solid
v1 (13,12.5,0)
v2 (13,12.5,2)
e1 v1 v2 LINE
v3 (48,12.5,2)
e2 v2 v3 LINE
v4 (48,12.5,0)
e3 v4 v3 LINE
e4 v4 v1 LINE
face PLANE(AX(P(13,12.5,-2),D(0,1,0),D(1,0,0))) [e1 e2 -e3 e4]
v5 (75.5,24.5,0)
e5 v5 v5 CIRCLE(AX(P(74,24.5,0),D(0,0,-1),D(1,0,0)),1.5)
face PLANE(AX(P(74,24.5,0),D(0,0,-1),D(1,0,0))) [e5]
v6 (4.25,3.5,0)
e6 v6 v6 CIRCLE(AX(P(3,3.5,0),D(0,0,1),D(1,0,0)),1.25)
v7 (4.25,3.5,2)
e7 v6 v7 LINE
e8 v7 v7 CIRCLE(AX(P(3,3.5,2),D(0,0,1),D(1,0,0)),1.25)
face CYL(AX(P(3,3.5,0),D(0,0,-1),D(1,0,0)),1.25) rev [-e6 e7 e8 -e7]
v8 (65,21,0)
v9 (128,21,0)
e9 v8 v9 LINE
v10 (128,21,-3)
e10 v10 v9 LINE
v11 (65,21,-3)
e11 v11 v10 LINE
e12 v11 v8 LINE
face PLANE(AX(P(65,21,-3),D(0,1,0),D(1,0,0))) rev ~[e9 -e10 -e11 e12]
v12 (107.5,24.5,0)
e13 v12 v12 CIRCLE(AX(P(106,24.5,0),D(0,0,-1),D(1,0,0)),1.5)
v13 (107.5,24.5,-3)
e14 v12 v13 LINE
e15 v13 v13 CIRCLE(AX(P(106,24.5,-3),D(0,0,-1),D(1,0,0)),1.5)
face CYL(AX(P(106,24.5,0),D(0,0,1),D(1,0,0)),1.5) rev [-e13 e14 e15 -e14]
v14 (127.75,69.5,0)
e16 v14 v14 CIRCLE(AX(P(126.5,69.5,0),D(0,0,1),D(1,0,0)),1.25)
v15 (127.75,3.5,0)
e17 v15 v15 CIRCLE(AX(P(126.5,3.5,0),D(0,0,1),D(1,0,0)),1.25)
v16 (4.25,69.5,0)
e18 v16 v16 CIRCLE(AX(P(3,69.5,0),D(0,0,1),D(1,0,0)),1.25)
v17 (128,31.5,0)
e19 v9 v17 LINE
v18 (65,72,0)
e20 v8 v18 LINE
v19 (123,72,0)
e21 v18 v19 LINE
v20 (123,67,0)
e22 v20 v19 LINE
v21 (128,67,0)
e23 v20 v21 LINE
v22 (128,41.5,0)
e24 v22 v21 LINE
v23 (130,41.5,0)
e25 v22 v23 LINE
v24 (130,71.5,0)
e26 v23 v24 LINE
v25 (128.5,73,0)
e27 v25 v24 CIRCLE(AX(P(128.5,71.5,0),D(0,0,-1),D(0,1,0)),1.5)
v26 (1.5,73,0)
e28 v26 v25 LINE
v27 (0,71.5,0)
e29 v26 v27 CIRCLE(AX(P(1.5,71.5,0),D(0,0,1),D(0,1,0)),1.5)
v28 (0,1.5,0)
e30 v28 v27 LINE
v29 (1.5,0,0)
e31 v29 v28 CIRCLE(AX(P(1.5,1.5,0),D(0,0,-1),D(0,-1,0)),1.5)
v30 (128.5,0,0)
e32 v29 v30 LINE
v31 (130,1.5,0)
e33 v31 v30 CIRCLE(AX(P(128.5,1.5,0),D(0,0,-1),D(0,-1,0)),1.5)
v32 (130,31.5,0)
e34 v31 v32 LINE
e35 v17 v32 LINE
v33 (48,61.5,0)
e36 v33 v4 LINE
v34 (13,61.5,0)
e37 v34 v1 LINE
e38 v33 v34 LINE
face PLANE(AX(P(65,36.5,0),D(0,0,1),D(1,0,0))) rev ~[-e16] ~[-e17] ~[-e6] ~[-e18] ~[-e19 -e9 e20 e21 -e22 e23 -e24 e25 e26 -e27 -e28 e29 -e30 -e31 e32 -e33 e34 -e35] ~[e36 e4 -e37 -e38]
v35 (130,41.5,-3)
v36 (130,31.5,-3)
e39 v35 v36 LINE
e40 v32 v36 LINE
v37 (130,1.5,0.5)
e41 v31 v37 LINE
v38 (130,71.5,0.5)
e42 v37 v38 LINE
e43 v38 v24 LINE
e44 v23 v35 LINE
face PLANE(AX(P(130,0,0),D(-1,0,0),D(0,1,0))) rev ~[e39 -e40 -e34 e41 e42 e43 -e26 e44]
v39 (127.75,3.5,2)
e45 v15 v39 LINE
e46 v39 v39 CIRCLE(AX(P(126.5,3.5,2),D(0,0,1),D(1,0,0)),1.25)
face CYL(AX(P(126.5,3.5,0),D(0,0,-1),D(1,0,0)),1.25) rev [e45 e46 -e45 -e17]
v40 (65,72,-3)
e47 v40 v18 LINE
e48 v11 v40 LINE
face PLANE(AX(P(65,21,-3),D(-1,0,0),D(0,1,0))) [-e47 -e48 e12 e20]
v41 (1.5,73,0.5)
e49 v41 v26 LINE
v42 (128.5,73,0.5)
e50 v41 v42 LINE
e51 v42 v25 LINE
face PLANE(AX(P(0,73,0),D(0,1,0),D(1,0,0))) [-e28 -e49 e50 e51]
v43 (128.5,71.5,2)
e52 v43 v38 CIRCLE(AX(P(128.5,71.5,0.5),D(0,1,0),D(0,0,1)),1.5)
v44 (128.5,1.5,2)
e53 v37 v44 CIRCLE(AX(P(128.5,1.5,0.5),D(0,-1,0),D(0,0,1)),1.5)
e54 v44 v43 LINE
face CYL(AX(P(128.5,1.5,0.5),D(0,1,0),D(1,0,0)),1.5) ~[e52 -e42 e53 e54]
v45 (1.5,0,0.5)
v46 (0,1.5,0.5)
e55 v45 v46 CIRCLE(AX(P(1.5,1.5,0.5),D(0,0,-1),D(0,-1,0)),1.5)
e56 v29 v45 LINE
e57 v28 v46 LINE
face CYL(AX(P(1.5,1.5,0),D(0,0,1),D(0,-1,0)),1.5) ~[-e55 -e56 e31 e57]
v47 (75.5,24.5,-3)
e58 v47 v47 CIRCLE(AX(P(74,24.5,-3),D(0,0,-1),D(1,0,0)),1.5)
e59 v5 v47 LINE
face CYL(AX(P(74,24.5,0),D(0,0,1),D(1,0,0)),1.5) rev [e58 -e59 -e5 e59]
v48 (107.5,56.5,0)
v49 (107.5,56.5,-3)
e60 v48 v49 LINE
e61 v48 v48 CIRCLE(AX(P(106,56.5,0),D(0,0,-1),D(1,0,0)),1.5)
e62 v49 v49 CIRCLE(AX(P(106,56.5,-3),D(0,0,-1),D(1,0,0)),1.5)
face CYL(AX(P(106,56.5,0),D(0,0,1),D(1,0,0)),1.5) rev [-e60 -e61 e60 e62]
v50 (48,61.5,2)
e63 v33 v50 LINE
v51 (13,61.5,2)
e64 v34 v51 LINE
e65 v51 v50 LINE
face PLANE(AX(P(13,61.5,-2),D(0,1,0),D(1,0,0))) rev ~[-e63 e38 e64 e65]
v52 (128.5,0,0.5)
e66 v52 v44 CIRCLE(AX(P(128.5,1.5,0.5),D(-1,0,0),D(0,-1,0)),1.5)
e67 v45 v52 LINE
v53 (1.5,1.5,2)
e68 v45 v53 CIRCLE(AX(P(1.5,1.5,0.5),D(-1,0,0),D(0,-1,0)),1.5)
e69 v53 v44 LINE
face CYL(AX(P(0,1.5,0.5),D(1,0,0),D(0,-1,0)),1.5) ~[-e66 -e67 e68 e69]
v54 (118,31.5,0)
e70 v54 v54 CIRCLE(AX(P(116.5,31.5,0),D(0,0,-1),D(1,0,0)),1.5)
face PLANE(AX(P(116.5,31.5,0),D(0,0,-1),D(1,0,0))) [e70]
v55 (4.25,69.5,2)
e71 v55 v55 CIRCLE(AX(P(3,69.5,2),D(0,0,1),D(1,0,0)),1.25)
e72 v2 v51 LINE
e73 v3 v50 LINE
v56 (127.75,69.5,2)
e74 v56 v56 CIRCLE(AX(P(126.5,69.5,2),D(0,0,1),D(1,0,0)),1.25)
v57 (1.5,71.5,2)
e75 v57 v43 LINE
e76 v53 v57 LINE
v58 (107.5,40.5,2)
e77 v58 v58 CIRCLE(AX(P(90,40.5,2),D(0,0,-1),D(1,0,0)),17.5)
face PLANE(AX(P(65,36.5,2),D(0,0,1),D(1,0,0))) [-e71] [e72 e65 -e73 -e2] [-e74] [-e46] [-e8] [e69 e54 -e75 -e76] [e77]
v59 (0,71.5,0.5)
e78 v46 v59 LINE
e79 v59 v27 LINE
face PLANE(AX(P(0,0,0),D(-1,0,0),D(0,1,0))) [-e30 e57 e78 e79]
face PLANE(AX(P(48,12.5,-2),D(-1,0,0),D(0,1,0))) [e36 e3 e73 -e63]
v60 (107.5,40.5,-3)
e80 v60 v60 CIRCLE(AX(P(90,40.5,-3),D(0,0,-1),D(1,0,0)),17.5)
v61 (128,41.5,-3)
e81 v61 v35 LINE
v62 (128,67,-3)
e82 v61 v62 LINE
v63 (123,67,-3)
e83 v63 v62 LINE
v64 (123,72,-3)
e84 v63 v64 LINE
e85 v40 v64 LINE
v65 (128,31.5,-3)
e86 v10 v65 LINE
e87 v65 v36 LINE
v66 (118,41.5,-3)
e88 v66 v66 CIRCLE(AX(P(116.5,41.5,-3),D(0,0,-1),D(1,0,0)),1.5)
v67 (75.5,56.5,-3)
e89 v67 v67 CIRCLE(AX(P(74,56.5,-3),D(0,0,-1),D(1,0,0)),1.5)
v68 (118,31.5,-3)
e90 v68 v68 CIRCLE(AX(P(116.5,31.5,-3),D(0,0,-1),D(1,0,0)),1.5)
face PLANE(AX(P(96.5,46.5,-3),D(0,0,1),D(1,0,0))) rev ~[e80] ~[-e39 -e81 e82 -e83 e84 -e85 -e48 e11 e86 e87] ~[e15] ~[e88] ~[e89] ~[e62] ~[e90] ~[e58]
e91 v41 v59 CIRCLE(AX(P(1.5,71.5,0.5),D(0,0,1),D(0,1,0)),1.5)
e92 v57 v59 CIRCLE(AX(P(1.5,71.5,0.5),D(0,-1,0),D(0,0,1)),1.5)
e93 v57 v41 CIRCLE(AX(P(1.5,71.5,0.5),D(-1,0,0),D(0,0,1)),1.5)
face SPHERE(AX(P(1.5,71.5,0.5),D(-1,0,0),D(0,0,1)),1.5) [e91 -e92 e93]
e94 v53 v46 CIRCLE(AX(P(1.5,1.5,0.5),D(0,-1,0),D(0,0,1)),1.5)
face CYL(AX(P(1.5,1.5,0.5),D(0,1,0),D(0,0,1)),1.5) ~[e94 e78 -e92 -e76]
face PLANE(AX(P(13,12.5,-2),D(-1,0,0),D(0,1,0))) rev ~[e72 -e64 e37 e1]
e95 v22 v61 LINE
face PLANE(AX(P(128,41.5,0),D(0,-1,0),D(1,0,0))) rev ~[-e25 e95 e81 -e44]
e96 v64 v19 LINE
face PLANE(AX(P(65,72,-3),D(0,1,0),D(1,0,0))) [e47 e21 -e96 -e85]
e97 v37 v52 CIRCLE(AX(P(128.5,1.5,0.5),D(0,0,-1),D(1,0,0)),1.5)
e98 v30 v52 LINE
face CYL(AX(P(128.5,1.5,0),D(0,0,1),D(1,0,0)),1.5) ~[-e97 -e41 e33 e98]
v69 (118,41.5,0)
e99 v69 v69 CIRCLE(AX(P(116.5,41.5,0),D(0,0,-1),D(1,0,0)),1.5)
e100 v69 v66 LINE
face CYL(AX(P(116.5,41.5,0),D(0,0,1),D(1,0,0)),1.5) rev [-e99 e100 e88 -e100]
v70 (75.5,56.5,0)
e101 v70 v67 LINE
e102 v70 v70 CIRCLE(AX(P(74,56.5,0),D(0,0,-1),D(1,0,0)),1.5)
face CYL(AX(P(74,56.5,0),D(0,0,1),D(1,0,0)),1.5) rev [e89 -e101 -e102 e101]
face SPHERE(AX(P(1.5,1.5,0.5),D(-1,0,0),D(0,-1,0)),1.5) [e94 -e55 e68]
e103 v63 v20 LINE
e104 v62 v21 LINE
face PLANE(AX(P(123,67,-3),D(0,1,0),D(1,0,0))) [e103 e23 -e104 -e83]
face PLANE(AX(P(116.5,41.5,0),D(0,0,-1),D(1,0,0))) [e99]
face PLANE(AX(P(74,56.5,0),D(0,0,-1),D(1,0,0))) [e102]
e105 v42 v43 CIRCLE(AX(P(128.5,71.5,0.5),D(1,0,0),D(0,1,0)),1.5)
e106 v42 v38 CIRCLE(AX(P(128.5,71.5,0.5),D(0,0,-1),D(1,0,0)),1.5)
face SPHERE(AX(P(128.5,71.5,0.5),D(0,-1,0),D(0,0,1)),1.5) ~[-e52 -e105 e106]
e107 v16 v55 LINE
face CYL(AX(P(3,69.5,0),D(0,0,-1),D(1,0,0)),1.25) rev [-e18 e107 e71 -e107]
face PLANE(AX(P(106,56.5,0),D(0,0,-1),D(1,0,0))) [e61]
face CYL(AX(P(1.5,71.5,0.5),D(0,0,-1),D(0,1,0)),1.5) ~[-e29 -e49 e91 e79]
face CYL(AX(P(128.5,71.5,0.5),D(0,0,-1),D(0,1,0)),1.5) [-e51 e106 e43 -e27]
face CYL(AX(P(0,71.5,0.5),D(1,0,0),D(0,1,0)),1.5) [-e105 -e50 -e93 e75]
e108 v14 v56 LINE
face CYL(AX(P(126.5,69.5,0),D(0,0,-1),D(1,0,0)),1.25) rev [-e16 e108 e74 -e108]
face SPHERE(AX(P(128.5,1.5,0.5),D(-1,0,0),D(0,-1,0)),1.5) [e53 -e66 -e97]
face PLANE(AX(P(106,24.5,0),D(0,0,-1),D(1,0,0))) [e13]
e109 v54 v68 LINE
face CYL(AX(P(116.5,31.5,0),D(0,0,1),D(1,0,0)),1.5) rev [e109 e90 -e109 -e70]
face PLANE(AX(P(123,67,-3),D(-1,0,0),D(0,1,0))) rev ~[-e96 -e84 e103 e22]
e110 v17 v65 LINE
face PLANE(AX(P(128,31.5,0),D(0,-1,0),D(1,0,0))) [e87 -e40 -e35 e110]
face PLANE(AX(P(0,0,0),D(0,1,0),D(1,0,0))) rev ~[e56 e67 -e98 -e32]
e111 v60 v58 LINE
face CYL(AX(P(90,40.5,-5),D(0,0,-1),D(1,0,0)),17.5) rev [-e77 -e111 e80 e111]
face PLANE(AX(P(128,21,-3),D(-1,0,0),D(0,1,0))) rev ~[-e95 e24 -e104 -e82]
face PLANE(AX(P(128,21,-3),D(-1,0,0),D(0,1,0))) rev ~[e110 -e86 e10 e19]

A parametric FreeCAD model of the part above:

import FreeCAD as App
import Part
import Sketcher
from FreeCAD import Vector


def edges_at(feature, points):
    """Names of the edges that pass closest to the given points."""
    edges = feature.Shape.Edges
    near = lambda p: min(range(len(edges)), key=lambda i: edges[i].distToShape(Part.Vertex(*p))[0])
    return sorted({f"Edge{near(p) + 1}" for p in points})


def add_polygon(sketch, points):
    """Adds a closed chain of lines whose ends are joined by coincident constraints."""
    first, n = sketch.GeometryCount, len(points)
    for a, b in zip(points, points[1:] + points[:1]):
        sketch.addGeometry(Part.LineSegment(App.Vector(*a, 0), App.Vector(*b, 0)), False)
    for i in range(n):
        sketch.addConstraint(Sketcher.Constraint("Coincident", first + i, 2, first + (i + 1) % n, 1))

doc = App.newDocument("Part")
body = doc.addObject("PartDesign::Body", "Body")

# Sketch on XY plane
sketch1 = body.newObject("Sketcher::SketchObject", "Sketch")
sketch1.AttachmentSupport = (doc.getObject("XY_Plane"), [""])
sketch1.MapMode = "FlatFace"
add_polygon(sketch1, [(0, 73), (0, 0), (130, 0), (130, 73)])  # lines 0-3
sketch1.addConstraint([
    Sketcher.Constraint("Vertical", 0),
    Sketcher.Constraint("Horizontal", 1),
    Sketcher.Constraint("Vertical", 2),
    Sketcher.Constraint("Horizontal", 3),
    Sketcher.Constraint("Coincident", 0, 2, -1, 1),
    Sketcher.Constraint("DistanceX", 1, 1, 1, 2, 130.0),
    Sketcher.Constraint("DistanceY", 0, 2, 0, 1, 73.0),
])
pad1 = body.newObject("PartDesign::Pad", "Pad")
pad1.Profile = sketch1
pad1.Length = 2

# Sketch on XY plane
sketch2 = body.newObject("Sketcher::SketchObject", "Sketch001")
sketch2.AttachmentSupport = (doc.getObject("XY_Plane"), [""])
sketch2.MapMode = "FlatFace"
sketch2.AttachmentOffset = App.Placement(Vector(0, 0, -2), App.Rotation())
add_polygon(sketch2, [(13, 61.5), (13, 12.5), (48, 12.5), (48, 61.5)])  # lines 0-3
sketch2.addConstraint([
    Sketcher.Constraint("Vertical", 0),
    Sketcher.Constraint("Horizontal", 1),
    Sketcher.Constraint("Vertical", 2),
    Sketcher.Constraint("Horizontal", 3),
    Sketcher.Constraint("DistanceX", 1, 1, 1, 2, 35.0),
    Sketcher.Constraint("DistanceY", 0, 2, 0, 1, 49.0),
    Sketcher.Constraint("DistanceX", -1, 1, 0, 2, 13.0),
    Sketcher.Constraint("DistanceY", -1, 1, 0, 2, 12.5),
])
pocket1 = body.newObject("PartDesign::Pocket", "Pocket")
pocket1.Profile = sketch2
pocket1.Length = 4
pocket1.Reversed = True

# Sketch on XY plane
sketch3 = body.newObject("Sketcher::SketchObject", "Sketch002")
sketch3.AttachmentSupport = (doc.getObject("XY_Plane"), [""])
sketch3.MapMode = "FlatFace"
sketch3.AttachmentOffset = App.Placement(Vector(0, 0, -6), App.Rotation())
sketch3.addGeometry(Part.Circle(Vector(90, 40.5, 0), Vector(0, 0, 1), 17.5), False)
sketch3.addConstraint([
    Sketcher.Constraint("Diameter", 0, 35.0),
    Sketcher.Constraint("DistanceX", -1, 1, 0, 3, 90.0),
    Sketcher.Constraint("DistanceY", -1, 1, 0, 3, 40.5),
])
pocket2 = body.newObject("PartDesign::Pocket", "Pocket001")
pocket2.Profile = sketch3
pocket2.Length = 14
pocket2.Reversed = True

# Sketch on XY plane
sketch4 = body.newObject("Sketcher::SketchObject", "Sketch003")
sketch4.AttachmentSupport = (doc.getObject("XY_Plane"), [""])
sketch4.MapMode = "FlatFace"
sketch4.AttachmentOffset = App.Placement(Vector(0, 0, -3), App.Rotation())
add_polygon(sketch4, [(65, 72), (65, 21), (128, 21), (128, 72)])  # lines 0-3
sketch4.addConstraint([
    Sketcher.Constraint("Vertical", 0),
    Sketcher.Constraint("Horizontal", 1),
    Sketcher.Constraint("Vertical", 2),
    Sketcher.Constraint("Horizontal", 3),
    Sketcher.Constraint("DistanceX", 1, 1, 1, 2, 63.0),
    Sketcher.Constraint("DistanceY", 0, 2, 0, 1, 51.0),
    Sketcher.Constraint("DistanceX", -1, 1, 0, 2, 65.0),
    Sketcher.Constraint("DistanceY", -1, 1, 0, 2, 21.0),
])
pad2 = body.newObject("PartDesign::Pad", "Pad001")
pad2.Profile = sketch4
pad2.Length = 3

# Sketch on XY plane
sketch5 = body.newObject("Sketcher::SketchObject", "Sketch004")
sketch5.AttachmentSupport = (doc.getObject("XY_Plane"), [""])
sketch5.MapMode = "FlatFace"
sketch5.AttachmentOffset = App.Placement(Vector(0, 0, -5), App.Rotation())
sketch5.addGeometry(Part.Circle(Vector(90, 40.5, 0), Vector(0, 0, 1), 17.5), False)
sketch5.addConstraint([
    Sketcher.Constraint("Diameter", 0, 35.0),
    Sketcher.Constraint("DistanceX", -1, 1, 0, 3, 90.0),
    Sketcher.Constraint("DistanceY", -1, 1, 0, 3, 40.5),
])
pocket3 = body.newObject("PartDesign::Pocket", "Pocket002")
pocket3.Profile = sketch5
pocket3.Length = 10
pocket3.Reversed = True

# Sketch on XY plane
sketch6 = body.newObject("Sketcher::SketchObject", "Sketch005")
sketch6.AttachmentSupport = (doc.getObject("XY_Plane"), [""])
sketch6.MapMode = "FlatFace"
sketch6.addGeometry(Part.Circle(Vector(106, 24.5, 0), Vector(0, 0, 1), 1.5), False)
sketch6.addConstraint([
    Sketcher.Constraint("Diameter", 0, 3.0),
    Sketcher.Constraint("DistanceX", -1, 1, 0, 3, 106.0),
    Sketcher.Constraint("DistanceY", -1, 1, 0, 3, 24.5),
])
pocket4 = body.newObject("PartDesign::Pocket", "Pocket003")
pocket4.Profile = sketch6
pocket4.Length = 3

# Sketch on XY plane
sketch7 = body.newObject("Sketcher::SketchObject", "Sketch006")
sketch7.AttachmentSupport = (doc.getObject("XY_Plane"), [""])
sketch7.MapMode = "FlatFace"
sketch7.addGeometry(Part.Circle(Vector(74, 24.5, 0), Vector(0, 0, 1), 1.5), False)
sketch7.addConstraint([
    Sketcher.Constraint("Diameter", 0, 3.0),
    Sketcher.Constraint("DistanceX", -1, 1, 0, 3, 74.0),
    Sketcher.Constraint("DistanceY", -1, 1, 0, 3, 24.5),
])
pocket5 = body.newObject("PartDesign::Pocket", "Pocket004")
pocket5.Profile = sketch7
pocket5.Length = 3

# Sketch on XY plane
sketch8 = body.newObject("Sketcher::SketchObject", "Sketch007")
sketch8.AttachmentSupport = (doc.getObject("XY_Plane"), [""])
sketch8.MapMode = "FlatFace"
sketch8.addGeometry(Part.Circle(Vector(74, 56.5, 0), Vector(0, 0, 1), 1.5), False)
sketch8.addConstraint([
    Sketcher.Constraint("Diameter", 0, 3.0),
    Sketcher.Constraint("DistanceX", -1, 1, 0, 3, 74.0),
    Sketcher.Constraint("DistanceY", -1, 1, 0, 3, 56.5),
])
pocket6 = body.newObject("PartDesign::Pocket", "Pocket005")
pocket6.Profile = sketch8
pocket6.Length = 3

# Sketch on XY plane
sketch9 = body.newObject("Sketcher::SketchObject", "Sketch008")
sketch9.AttachmentSupport = (doc.getObject("XY_Plane"), [""])
sketch9.MapMode = "FlatFace"
sketch9.addGeometry(Part.Circle(Vector(106, 56.5, 0), Vector(0, 0, 1), 1.5), False)
sketch9.addConstraint([
    Sketcher.Constraint("Diameter", 0, 3.0),
    Sketcher.Constraint("DistanceX", -1, 1, 0, 3, 106.0),
    Sketcher.Constraint("DistanceY", -1, 1, 0, 3, 56.5),
])
pocket7 = body.newObject("PartDesign::Pocket", "Pocket006")
pocket7.Profile = sketch9
pocket7.Length = 3

# Sketch on XY plane
sketch10 = body.newObject("Sketcher::SketchObject", "Sketch009")
sketch10.AttachmentSupport = (doc.getObject("XY_Plane"), [""])
sketch10.MapMode = "FlatFace"
sketch10.addGeometry(Part.Circle(Vector(116.5, 41.5, 0), Vector(0, 0, 1), 1.5), False)
sketch10.addConstraint([
    Sketcher.Constraint("Diameter", 0, 3.0),
    Sketcher.Constraint("DistanceX", -1, 1, 0, 3, 116.5),
    Sketcher.Constraint("DistanceY", -1, 1, 0, 3, 41.5),
])
pocket8 = body.newObject("PartDesign::Pocket", "Pocket007")
pocket8.Profile = sketch10
pocket8.Length = 3

# Sketch on XY plane
sketch11 = body.newObject("Sketcher::SketchObject", "Sketch010")
sketch11.AttachmentSupport = (doc.getObject("XY_Plane"), [""])
sketch11.MapMode = "FlatFace"
sketch11.addGeometry(Part.Circle(Vector(116.5, 31.5, 0), Vector(0, 0, 1), 1.5), False)
sketch11.addConstraint([
    Sketcher.Constraint("Diameter", 0, 3.0),
    Sketcher.Constraint("DistanceX", -1, 1, 0, 3, 116.5),
    Sketcher.Constraint("DistanceY", -1, 1, 0, 3, 31.5),
])
pocket9 = body.newObject("PartDesign::Pocket", "Pocket008")
pocket9.Profile = sketch11
pocket9.Length = 3

# Sketch on XY plane
sketch12 = body.newObject("Sketcher::SketchObject", "Sketch011")
sketch12.AttachmentSupport = (doc.getObject("XY_Plane"), [""])
sketch12.MapMode = "FlatFace"
add_polygon(sketch12, [(128, 31.5), (128, 41.5), (130, 41.5), (130, 31.5)])  # lines 0-3
sketch12.addConstraint([
    Sketcher.Constraint("Vertical", 0),
    Sketcher.Constraint("Horizontal", 1),
    Sketcher.Constraint("Vertical", 2),
    Sketcher.Constraint("Horizontal", 3),
    Sketcher.Constraint("DistanceX", 1, 1, 1, 2, 2.0),
    Sketcher.Constraint("DistanceY", 0, 1, 0, 2, 10.0),
    Sketcher.Constraint("DistanceX", -1, 1, 0, 2, 128.0),
    Sketcher.Constraint("DistanceY", -1, 1, 0, 2, 41.5),
])
pad3 = body.newObject("PartDesign::Pad", "Pad002")
pad3.Profile = sketch12
pad3.Length = 3
pad3.Reversed = True

# Sketch on XY plane
sketch13 = body.newObject("Sketcher::SketchObject", "Sketch012")
sketch13.AttachmentSupport = (doc.getObject("XY_Plane"), [""])
sketch13.MapMode = "FlatFace"
sketch13.AttachmentOffset = App.Placement(Vector(0, 0, -3), App.Rotation())
add_polygon(sketch13, [(123, 72), (123, 67), (128, 67), (128, 72)])  # lines 0-3
sketch13.addConstraint([
    Sketcher.Constraint("Vertical", 0),
    Sketcher.Constraint("Horizontal", 1),
    Sketcher.Constraint("Vertical", 2),
    Sketcher.Constraint("Horizontal", 3),
    Sketcher.Constraint("Equal", 3, 0),
    Sketcher.Constraint("DistanceX", 1, 1, 1, 2, 5.0),
    Sketcher.Constraint("DistanceX", -1, 1, 0, 2, 123.0),
    Sketcher.Constraint("DistanceY", -1, 1, 0, 2, 67.0),
])
pocket10 = body.newObject("PartDesign::Pocket", "Pocket009")
pocket10.Profile = sketch13
pocket10.Length = 3
pocket10.Reversed = True

# Sketch on XY plane
sketch14 = body.newObject("Sketcher::SketchObject", "Sketch013")
sketch14.AttachmentSupport = (doc.getObject("XY_Plane"), [""])
sketch14.MapMode = "FlatFace"
sketch14.addGeometry(Part.Circle(Vector(3, 69.5, 0), Vector(0, 0, 1), 1.25), False)
sketch14.addConstraint([
    Sketcher.Constraint("Diameter", 0, 2.5),
    Sketcher.Constraint("DistanceX", -1, 1, 0, 3, 3.0),
    Sketcher.Constraint("DistanceY", -1, 1, 0, 3, 69.5),
])
pocket11 = body.newObject("PartDesign::Pocket", "Pocket010")
pocket11.Profile = sketch14
pocket11.Length = 2
pocket11.Reversed = True

# Sketch on XY plane
sketch15 = body.newObject("Sketcher::SketchObject", "Sketch014")
sketch15.AttachmentSupport = (doc.getObject("XY_Plane"), [""])
sketch15.MapMode = "FlatFace"
sketch15.addGeometry(Part.Circle(Vector(3, 3.5, 0), Vector(0, 0, 1), 1.25), False)
sketch15.addConstraint([
    Sketcher.Constraint("Diameter", 0, 2.5),
    Sketcher.Constraint("DistanceX", -1, 1, 0, 3, 3.0),
    Sketcher.Constraint("DistanceY", -1, 1, 0, 3, 3.5),
])
pocket12 = body.newObject("PartDesign::Pocket", "Pocket011")
pocket12.Profile = sketch15
pocket12.Length = 2
pocket12.Reversed = True

# Sketch on XY plane
sketch16 = body.newObject("Sketcher::SketchObject", "Sketch015")
sketch16.AttachmentSupport = (doc.getObject("XY_Plane"), [""])
sketch16.MapMode = "FlatFace"
sketch16.addGeometry(Part.Circle(Vector(126.5, 3.5, 0), Vector(0, 0, 1), 1.25), False)
sketch16.addConstraint([
    Sketcher.Constraint("Diameter", 0, 2.5),
    Sketcher.Constraint("DistanceX", -1, 1, 0, 3, 126.5),
    Sketcher.Constraint("DistanceY", -1, 1, 0, 3, 3.5),
])
pocket13 = body.newObject("PartDesign::Pocket", "Pocket012")
pocket13.Profile = sketch16
pocket13.Length = 2
pocket13.Reversed = True

# Sketch on XY plane
sketch17 = body.newObject("Sketcher::SketchObject", "Sketch016")
sketch17.AttachmentSupport = (doc.getObject("XY_Plane"), [""])
sketch17.MapMode = "FlatFace"
sketch17.addGeometry(Part.Circle(Vector(126.5, 69.5, 0), Vector(0, 0, 1), 1.25), False)
sketch17.addConstraint([
    Sketcher.Constraint("Diameter", 0, 2.5),
    Sketcher.Constraint("DistanceX", -1, 1, 0, 3, 126.5),
    Sketcher.Constraint("DistanceY", -1, 1, 0, 3, 69.5),
])
pocket14 = body.newObject("PartDesign::Pocket", "Pocket013")
pocket14.Profile = sketch17
pocket14.Length = 2
pocket14.Reversed = True
doc.recompute()

fillet = body.newObject("PartDesign::Fillet", "Fillet")
fillet.Base = (pocket14, edges_at(pocket14, [(65, 0, 2)]))
fillet.Radius = 1.5
doc.recompute()

fillet2 = body.newObject("PartDesign::Fillet", "Fillet001")
fillet2.Base = (fillet, edges_at(fillet, [(130, 37.25, 2)]))
fillet2.Radius = 1.5
doc.recompute()

fillet3 = body.newObject("PartDesign::Fillet", "Fillet002")
fillet3.Base = (fillet2, edges_at(fillet2, [(64.25, 73, 2)]))
fillet3.Radius = 1.5
doc.recompute()

fillet4 = body.newObject("PartDesign::Fillet", "Fillet003")
fillet4.Base = (fillet3, edges_at(fillet3, [(0, 36.5, 2)]))
fillet4.Radius = 1.5

doc.recompute()
